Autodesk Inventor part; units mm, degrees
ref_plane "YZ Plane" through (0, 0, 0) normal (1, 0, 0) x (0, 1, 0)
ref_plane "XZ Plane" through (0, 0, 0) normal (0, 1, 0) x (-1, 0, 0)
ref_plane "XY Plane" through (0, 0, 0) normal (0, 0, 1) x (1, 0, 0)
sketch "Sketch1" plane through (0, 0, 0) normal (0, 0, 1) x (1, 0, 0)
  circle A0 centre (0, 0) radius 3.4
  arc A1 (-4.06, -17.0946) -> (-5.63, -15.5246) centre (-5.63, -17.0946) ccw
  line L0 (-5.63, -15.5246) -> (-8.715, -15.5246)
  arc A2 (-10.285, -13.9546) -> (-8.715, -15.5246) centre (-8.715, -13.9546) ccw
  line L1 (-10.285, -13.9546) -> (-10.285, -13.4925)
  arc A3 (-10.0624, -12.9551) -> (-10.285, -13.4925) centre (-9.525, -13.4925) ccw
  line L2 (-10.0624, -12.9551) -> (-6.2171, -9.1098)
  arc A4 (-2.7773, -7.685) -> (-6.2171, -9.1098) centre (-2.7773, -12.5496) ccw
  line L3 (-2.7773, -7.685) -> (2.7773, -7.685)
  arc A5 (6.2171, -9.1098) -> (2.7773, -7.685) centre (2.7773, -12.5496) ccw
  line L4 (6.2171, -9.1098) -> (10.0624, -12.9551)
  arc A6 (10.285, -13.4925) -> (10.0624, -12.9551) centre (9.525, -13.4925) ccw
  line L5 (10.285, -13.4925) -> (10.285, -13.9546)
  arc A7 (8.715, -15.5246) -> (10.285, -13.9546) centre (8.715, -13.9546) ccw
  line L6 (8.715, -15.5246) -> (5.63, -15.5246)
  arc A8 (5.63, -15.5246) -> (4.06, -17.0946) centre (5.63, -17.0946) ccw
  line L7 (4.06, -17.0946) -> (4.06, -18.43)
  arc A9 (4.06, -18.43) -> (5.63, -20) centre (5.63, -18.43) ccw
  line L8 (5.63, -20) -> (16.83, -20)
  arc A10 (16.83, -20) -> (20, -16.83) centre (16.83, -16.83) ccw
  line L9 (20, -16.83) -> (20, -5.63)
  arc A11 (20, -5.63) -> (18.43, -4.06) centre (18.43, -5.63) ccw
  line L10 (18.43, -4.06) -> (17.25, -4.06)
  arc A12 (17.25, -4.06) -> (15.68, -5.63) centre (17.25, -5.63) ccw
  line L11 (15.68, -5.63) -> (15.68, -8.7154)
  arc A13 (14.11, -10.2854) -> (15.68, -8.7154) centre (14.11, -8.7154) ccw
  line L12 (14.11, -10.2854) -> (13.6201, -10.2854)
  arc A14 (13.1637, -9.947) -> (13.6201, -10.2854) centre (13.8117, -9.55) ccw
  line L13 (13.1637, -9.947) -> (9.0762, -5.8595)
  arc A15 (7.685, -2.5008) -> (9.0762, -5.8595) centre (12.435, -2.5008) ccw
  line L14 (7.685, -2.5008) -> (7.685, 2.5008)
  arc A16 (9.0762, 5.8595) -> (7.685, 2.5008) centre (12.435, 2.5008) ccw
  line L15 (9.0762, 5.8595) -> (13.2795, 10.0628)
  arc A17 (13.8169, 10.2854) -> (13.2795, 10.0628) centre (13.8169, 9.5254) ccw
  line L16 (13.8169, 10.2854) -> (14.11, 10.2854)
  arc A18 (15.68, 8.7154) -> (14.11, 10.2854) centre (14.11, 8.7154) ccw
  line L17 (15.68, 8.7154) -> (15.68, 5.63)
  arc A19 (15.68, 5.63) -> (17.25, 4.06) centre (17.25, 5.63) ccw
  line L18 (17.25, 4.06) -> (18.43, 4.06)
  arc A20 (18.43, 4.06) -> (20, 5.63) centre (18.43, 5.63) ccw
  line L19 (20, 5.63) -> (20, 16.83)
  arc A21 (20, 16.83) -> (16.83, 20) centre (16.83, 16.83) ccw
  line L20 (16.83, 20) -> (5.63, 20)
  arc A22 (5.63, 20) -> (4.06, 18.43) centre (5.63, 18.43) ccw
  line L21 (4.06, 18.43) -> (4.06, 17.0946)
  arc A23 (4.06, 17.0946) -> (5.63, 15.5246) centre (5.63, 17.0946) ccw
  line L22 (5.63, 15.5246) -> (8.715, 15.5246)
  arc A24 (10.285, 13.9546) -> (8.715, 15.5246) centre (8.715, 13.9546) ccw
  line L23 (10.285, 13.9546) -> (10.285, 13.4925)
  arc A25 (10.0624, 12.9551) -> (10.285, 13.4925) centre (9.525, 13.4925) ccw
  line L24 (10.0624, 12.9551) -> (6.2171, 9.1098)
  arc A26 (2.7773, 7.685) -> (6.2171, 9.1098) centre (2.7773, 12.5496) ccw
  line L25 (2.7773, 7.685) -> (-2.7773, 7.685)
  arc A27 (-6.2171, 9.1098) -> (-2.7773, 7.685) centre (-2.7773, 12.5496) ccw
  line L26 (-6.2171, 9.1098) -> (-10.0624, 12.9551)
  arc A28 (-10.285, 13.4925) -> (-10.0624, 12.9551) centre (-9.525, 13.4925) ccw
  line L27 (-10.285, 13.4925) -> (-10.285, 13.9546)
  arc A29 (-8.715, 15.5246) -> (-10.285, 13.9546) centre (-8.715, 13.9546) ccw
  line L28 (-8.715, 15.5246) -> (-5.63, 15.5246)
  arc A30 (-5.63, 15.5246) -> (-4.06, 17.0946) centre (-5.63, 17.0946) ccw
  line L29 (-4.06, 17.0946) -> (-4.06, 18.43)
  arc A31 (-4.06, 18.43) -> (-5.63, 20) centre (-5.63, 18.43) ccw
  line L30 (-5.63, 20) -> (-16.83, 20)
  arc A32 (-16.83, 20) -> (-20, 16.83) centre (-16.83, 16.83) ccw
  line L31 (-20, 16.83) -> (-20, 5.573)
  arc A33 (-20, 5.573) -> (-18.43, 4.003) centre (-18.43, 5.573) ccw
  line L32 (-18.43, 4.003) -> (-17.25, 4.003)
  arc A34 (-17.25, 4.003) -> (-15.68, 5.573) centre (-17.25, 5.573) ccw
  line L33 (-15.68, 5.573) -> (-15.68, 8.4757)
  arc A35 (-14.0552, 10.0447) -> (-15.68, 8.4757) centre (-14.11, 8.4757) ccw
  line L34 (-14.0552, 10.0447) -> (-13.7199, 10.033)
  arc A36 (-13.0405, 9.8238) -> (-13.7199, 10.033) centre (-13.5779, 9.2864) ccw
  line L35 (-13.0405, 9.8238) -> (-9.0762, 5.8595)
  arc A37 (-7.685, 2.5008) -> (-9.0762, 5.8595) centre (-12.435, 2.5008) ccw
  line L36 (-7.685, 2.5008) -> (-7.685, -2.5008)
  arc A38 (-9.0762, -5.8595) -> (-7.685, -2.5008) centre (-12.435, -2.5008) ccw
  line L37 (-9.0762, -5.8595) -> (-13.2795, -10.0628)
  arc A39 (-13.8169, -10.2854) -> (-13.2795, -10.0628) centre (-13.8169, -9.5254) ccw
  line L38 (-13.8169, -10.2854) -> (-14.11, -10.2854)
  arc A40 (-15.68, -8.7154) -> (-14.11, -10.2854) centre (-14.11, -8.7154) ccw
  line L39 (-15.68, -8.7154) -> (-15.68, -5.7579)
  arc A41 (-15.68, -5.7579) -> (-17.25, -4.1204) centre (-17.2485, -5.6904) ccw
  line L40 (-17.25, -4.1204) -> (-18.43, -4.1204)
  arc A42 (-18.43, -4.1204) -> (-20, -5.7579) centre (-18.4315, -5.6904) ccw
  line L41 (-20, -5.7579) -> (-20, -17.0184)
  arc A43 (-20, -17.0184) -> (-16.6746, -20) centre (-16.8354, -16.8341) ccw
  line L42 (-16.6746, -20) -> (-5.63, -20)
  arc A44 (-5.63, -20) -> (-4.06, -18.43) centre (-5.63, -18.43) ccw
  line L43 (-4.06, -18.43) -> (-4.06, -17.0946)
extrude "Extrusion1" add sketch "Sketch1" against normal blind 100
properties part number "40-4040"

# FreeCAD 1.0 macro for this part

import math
import FreeCAD as App
import Part
import Sketcher

doc = App.newDocument("Part")
body = doc.addObject("PartDesign::Body", "Body")

# Sketch on XY plane
sketch1 = body.newObject("Sketcher::SketchObject", "Sketch")
sketch1.AttachmentSupport = (doc.getObject("XY_Plane"), [""])
sketch1.MapMode = "FlatFace"
sketch1.addGeometry(Part.LineSegment(App.Vector(-4.06, -18.43, 0), App.Vector(-4.06, -17.09, 0)), False)
sketch1.addGeometry(Part.ArcOfCircle(Part.Circle(App.Vector(-5.63, -17.09, 0), App.Vector(0, 0, 1), 1.57), math.radians(0), math.radians(90)), False)
sketch1.addGeometry(Part.LineSegment(App.Vector(-5.63, -15.52, 0), App.Vector(-8.71, -15.52, 0)), False)
sketch1.addGeometry(Part.ArcOfCircle(Part.Circle(App.Vector(-8.71, -13.95, 0), App.Vector(0, 0, 1), 1.57), math.radians(180), math.radians(270)), False)
sketch1.addGeometry(Part.LineSegment(App.Vector(-10.29, -13.95, 0), App.Vector(-10.29, -13.49, 0)), False)
sketch1.addGeometry(Part.ArcOfCircle(Part.Circle(App.Vector(-9.53, -13.49, 0), App.Vector(0, 0, 1), 0.76), math.radians(135), math.radians(180)), False)
sketch1.addGeometry(Part.LineSegment(App.Vector(-10.06, -12.96, 0), App.Vector(-6.22, -9.11, 0)), False)
sketch1.addGeometry(Part.ArcOfCircle(Part.Circle(App.Vector(-2.78, -12.55, 0), App.Vector(0, 0, 1), 4.86), math.radians(90), math.radians(135)), False)
sketch1.addGeometry(Part.LineSegment(App.Vector(-2.78, -7.68, 0), App.Vector(2.78, -7.68, 0)), False)
sketch1.addGeometry(Part.ArcOfCircle(Part.Circle(App.Vector(2.78, -12.55, 0), App.Vector(0, 0, 1), 4.86), math.radians(45), math.radians(90)), False)
sketch1.addGeometry(Part.LineSegment(App.Vector(6.22, -9.11, 0), App.Vector(10.06, -12.96, 0)), False)
sketch1.addGeometry(Part.ArcOfCircle(Part.Circle(App.Vector(9.53, -13.49, 0), App.Vector(0, 0, 1), 0.76), math.radians(0), math.radians(45)), False)
sketch1.addGeometry(Part.LineSegment(App.Vector(10.29, -13.49, 0), App.Vector(10.29, -13.95, 0)), False)
sketch1.addGeometry(Part.ArcOfCircle(Part.Circle(App.Vector(8.71, -13.95, 0), App.Vector(0, 0, 1), 1.57), math.radians(-90), math.radians(0)), False)
sketch1.addGeometry(Part.LineSegment(App.Vector(8.71, -15.52, 0), App.Vector(5.63, -15.52, 0)), False)
sketch1.addGeometry(Part.ArcOfCircle(Part.Circle(App.Vector(5.63, -17.09, 0), App.Vector(0, 0, 1), 1.57), math.radians(90), math.radians(180)), False)
sketch1.addGeometry(Part.LineSegment(App.Vector(4.06, -17.09, 0), App.Vector(4.06, -18.43, 0)), False)
sketch1.addGeometry(Part.ArcOfCircle(Part.Circle(App.Vector(5.63, -18.43, 0), App.Vector(0, 0, 1), 1.57), math.radians(180), math.radians(270)), False)
sketch1.addGeometry(Part.LineSegment(App.Vector(5.63, -20, 0), App.Vector(16.83, -20, 0)), False)
sketch1.addGeometry(Part.ArcOfCircle(Part.Circle(App.Vector(16.83, -16.83, 0), App.Vector(0, 0, 1), 3.17), math.radians(-90), math.radians(0)), False)
sketch1.addGeometry(Part.LineSegment(App.Vector(20, -16.83, 0), App.Vector(20, -5.63, 0)), False)
sketch1.addGeometry(Part.ArcOfCircle(Part.Circle(App.Vector(18.43, -5.63, 0), App.Vector(0, 0, 1), 1.57), math.radians(0), math.radians(90)), False)
sketch1.addGeometry(Part.LineSegment(App.Vector(18.43, -4.06, 0), App.Vector(17.25, -4.06, 0)), False)
sketch1.addGeometry(Part.ArcOfCircle(Part.Circle(App.Vector(17.25, -5.63, 0), App.Vector(0, 0, 1), 1.57), math.radians(90), math.radians(180)), False)
sketch1.addGeometry(Part.LineSegment(App.Vector(15.68, -5.63, 0), App.Vector(15.68, -8.72, 0)), False)
sketch1.addGeometry(Part.ArcOfCircle(Part.Circle(App.Vector(14.11, -8.72, 0), App.Vector(0, 0, 1), 1.57), math.radians(-90), math.radians(0)), False)
sketch1.addGeometry(Part.LineSegment(App.Vector(14.11, -10.29, 0), App.Vector(13.62, -10.29, 0)), False)
sketch1.addGeometry(Part.ArcOfCircle(Part.Circle(App.Vector(13.81, -9.55, 0), App.Vector(0, 0, 1), 0.76), math.radians(-149), math.radians(-105)), False)
sketch1.addGeometry(Part.LineSegment(App.Vector(13.16, -9.95, 0), App.Vector(9.08, -5.86, 0)), False)
sketch1.addGeometry(Part.ArcOfCircle(Part.Circle(App.Vector(12.44, -2.5, 0), App.Vector(0, 0, 1), 4.75), math.radians(180), math.radians(225)), False)
sketch1.addGeometry(Part.LineSegment(App.Vector(7.68, -2.5, 0), App.Vector(7.68, 2.5, 0)), False)
sketch1.addGeometry(Part.ArcOfCircle(Part.Circle(App.Vector(12.44, 2.5, 0), App.Vector(0, 0, 1), 4.75), math.radians(135), math.radians(180)), False)
sketch1.addGeometry(Part.LineSegment(App.Vector(9.08, 5.86, 0), App.Vector(13.28, 10.06, 0)), False)
sketch1.addGeometry(Part.ArcOfCircle(Part.Circle(App.Vector(13.82, 9.53, 0), App.Vector(0, 0, 1), 0.76), math.radians(90), math.radians(135)), False)
sketch1.addGeometry(Part.LineSegment(App.Vector(13.82, 10.29, 0), App.Vector(14.11, 10.29, 0)), False)
sketch1.addGeometry(Part.ArcOfCircle(Part.Circle(App.Vector(14.11, 8.72, 0), App.Vector(0, 0, 1), 1.57), math.radians(0), math.radians(90)), False)
sketch1.addGeometry(Part.LineSegment(App.Vector(15.68, 8.72, 0), App.Vector(15.68, 5.63, 0)), False)
sketch1.addGeometry(Part.ArcOfCircle(Part.Circle(App.Vector(17.25, 5.63, 0), App.Vector(0, 0, 1), 1.57), math.radians(180), math.radians(270)), False)
sketch1.addGeometry(Part.LineSegment(App.Vector(17.25, 4.06, 0), App.Vector(18.43, 4.06, 0)), False)
sketch1.addGeometry(Part.ArcOfCircle(Part.Circle(App.Vector(18.43, 5.63, 0), App.Vector(0, 0, 1), 1.57), math.radians(-90), math.radians(0)), False)
sketch1.addGeometry(Part.LineSegment(App.Vector(20, 5.63, 0), App.Vector(20, 16.83, 0)), False)
sketch1.addGeometry(Part.ArcOfCircle(Part.Circle(App.Vector(16.83, 16.83, 0), App.Vector(0, 0, 1), 3.17), math.radians(0), math.radians(90)), False)
sketch1.addGeometry(Part.LineSegment(App.Vector(16.83, 20, 0), App.Vector(5.63, 20, 0)), False)
sketch1.addGeometry(Part.ArcOfCircle(Part.Circle(App.Vector(5.63, 18.43, 0), App.Vector(0, 0, 1), 1.57), math.radians(90), math.radians(180)), False)
sketch1.addGeometry(Part.LineSegment(App.Vector(4.06, 18.43, 0), App.Vector(4.06, 17.09, 0)), False)
sketch1.addGeometry(Part.ArcOfCircle(Part.Circle(App.Vector(5.63, 17.09, 0), App.Vector(0, 0, 1), 1.57), math.radians(180), math.radians(270)), False)
sketch1.addGeometry(Part.LineSegment(App.Vector(5.63, 15.52, 0), App.Vector(8.71, 15.52, 0)), False)
sketch1.addGeometry(Part.ArcOfCircle(Part.Circle(App.Vector(8.71, 13.95, 0), App.Vector(0, 0, 1), 1.57), math.radians(0), math.radians(90)), False)
sketch1.addGeometry(Part.LineSegment(App.Vector(10.29, 13.95, 0), App.Vector(10.29, 13.49, 0)), False)
sketch1.addGeometry(Part.ArcOfCircle(Part.Circle(App.Vector(9.53, 13.49, 0), App.Vector(0, 0, 1), 0.76), math.radians(-45), math.radians(0)), False)
sketch1.addGeometry(Part.LineSegment(App.Vector(10.06, 12.96, 0), App.Vector(6.22, 9.11, 0)), False)
sketch1.addGeometry(Part.ArcOfCircle(Part.Circle(App.Vector(2.78, 12.55, 0), App.Vector(0, 0, 1), 4.86), math.radians(-90), math.radians(-45)), False)
sketch1.addGeometry(Part.LineSegment(App.Vector(2.78, 7.68, 0), App.Vector(-2.78, 7.68, 0)), False)
sketch1.addGeometry(Part.ArcOfCircle(Part.Circle(App.Vector(-2.78, 12.55, 0), App.Vector(0, 0, 1), 4.86), math.radians(-135), math.radians(-90)), False)
sketch1.addGeometry(Part.LineSegment(App.Vector(-6.22, 9.11, 0), App.Vector(-10.06, 12.96, 0)), False)
sketch1.addGeometry(Part.ArcOfCircle(Part.Circle(App.Vector(-9.53, 13.49, 0), App.Vector(0, 0, 1), 0.76), math.radians(180), math.radians(225)), False)
sketch1.addGeometry(Part.LineSegment(App.Vector(-10.29, 13.49, 0), App.Vector(-10.29, 13.95, 0)), False)
sketch1.addGeometry(Part.ArcOfCircle(Part.Circle(App.Vector(-8.71, 13.95, 0), App.Vector(0, 0, 1), 1.57), math.radians(90), math.radians(180)), False)
sketch1.addGeometry(Part.LineSegment(App.Vector(-8.71, 15.52, 0), App.Vector(-5.63, 15.52, 0)), False)
sketch1.addGeometry(Part.ArcOfCircle(Part.Circle(App.Vector(-5.63, 17.09, 0), App.Vector(0, 0, 1), 1.57), math.radians(-90), math.radians(0)), False)
sketch1.addGeometry(Part.LineSegment(App.Vector(-4.06, 17.09, 0), App.Vector(-4.06, 18.43, 0)), False)
sketch1.addGeometry(Part.ArcOfCircle(Part.Circle(App.Vector(-5.63, 18.43, 0), App.Vector(0, 0, 1), 1.57), math.radians(0), math.radians(90)), False)
sketch1.addGeometry(Part.LineSegment(App.Vector(-5.63, 20, 0), App.Vector(-16.83, 20, 0)), False)
sketch1.addGeometry(Part.ArcOfCircle(Part.Circle(App.Vector(-16.83, 16.83, 0), App.Vector(0, 0, 1), 3.17), math.radians(90), math.radians(180)), False)
sketch1.addGeometry(Part.LineSegment(App.Vector(-20, 16.83, 0), App.Vector(-20, 5.57, 0)), False)
sketch1.addGeometry(Part.ArcOfCircle(Part.Circle(App.Vector(-18.43, 5.57, 0), App.Vector(0, 0, 1), 1.57), math.radians(180), math.radians(270)), False)
sketch1.addGeometry(Part.LineSegment(App.Vector(-18.43, 4, 0), App.Vector(-17.25, 4, 0)), False)
sketch1.addGeometry(Part.ArcOfCircle(Part.Circle(App.Vector(-17.25, 5.57, 0), App.Vector(0, 0, 1), 1.57), math.radians(-90), math.radians(0)), False)
sketch1.addGeometry(Part.LineSegment(App.Vector(-15.68, 5.57, 0), App.Vector(-15.68, 8.48, 0)), False)
sketch1.addGeometry(Part.ArcOfCircle(Part.Circle(App.Vector(-14.11, 8.48, 0), App.Vector(0, 0, 1), 1.57), math.radians(88), math.radians(180)), False)
sketch1.addGeometry(Part.LineSegment(App.Vector(-14.06, 10.04, 0), App.Vector(-13.72, 10.03, 0)), False)
sketch1.addGeometry(Part.ArcOfCircle(Part.Circle(App.Vector(-13.58, 9.29, 0), App.Vector(0, 0, 1), 0.76), math.radians(45), math.radians(101)), False)
sketch1.addGeometry(Part.LineSegment(App.Vector(-13.04, 9.82, 0), App.Vector(-9.08, 5.86, 0)), False)
sketch1.addGeometry(Part.ArcOfCircle(Part.Circle(App.Vector(-12.44, 2.5, 0), App.Vector(0, 0, 1), 4.75), math.radians(0), math.radians(45)), False)
sketch1.addGeometry(Part.LineSegment(App.Vector(-7.68, 2.5, 0), App.Vector(-7.68, -2.5, 0)), False)
sketch1.addGeometry(Part.ArcOfCircle(Part.Circle(App.Vector(-12.44, -2.5, 0), App.Vector(0, 0, 1), 4.75), math.radians(-45), math.radians(0)), False)
sketch1.addGeometry(Part.LineSegment(App.Vector(-9.08, -5.86, 0), App.Vector(-13.28, -10.06, 0)), False)
sketch1.addGeometry(Part.ArcOfCircle(Part.Circle(App.Vector(-13.82, -9.53, 0), App.Vector(0, 0, 1), 0.76), math.radians(-90), math.radians(-45)), False)
sketch1.addGeometry(Part.LineSegment(App.Vector(-13.82, -10.29, 0), App.Vector(-14.11, -10.29, 0)), False)
sketch1.addGeometry(Part.ArcOfCircle(Part.Circle(App.Vector(-14.11, -8.72, 0), App.Vector(0, 0, 1), 1.57), math.radians(180), math.radians(270)), False)
sketch1.addGeometry(Part.LineSegment(App.Vector(-15.68, -8.72, 0), App.Vector(-15.68, -5.76, 0)), False)
sketch1.addGeometry(Part.ArcOfCircle(Part.Circle(App.Vector(-17.25, -5.69, 0), App.Vector(0, 0, 1), 1.57), math.radians(-2), math.radians(90)), False)
sketch1.addGeometry(Part.LineSegment(App.Vector(-17.25, -4.12, 0), App.Vector(-18.43, -4.12, 0)), False)
sketch1.addGeometry(Part.ArcOfCircle(Part.Circle(App.Vector(-18.43, -5.69, 0), App.Vector(0, 0, 1), 1.57), math.radians(90), math.radians(182)), False)
sketch1.addGeometry(Part.LineSegment(App.Vector(-20, -5.76, 0), App.Vector(-20, -17.02, 0)), False)
sketch1.addGeometry(Part.ArcOfCircle(Part.Circle(App.Vector(-16.84, -16.83, 0), App.Vector(0, 0, 1), 3.17), math.radians(-177), math.radians(-87)), False)
sketch1.addGeometry(Part.LineSegment(App.Vector(-16.67, -20, 0), App.Vector(-5.63, -20, 0)), False)
sketch1.addGeometry(Part.ArcOfCircle(Part.Circle(App.Vector(-5.63, -18.43, 0), App.Vector(0, 0, 1), 1.57), math.radians(-90), math.radians(0)), False)
sketch1.addGeometry(Part.Circle(App.Vector(0, 0, 0), App.Vector(0, 0, 1), 3.4), False)
sketch1.addConstraint(Sketcher.Constraint("Tangent", 0, 2, 1, 1))
sketch1.addConstraint(Sketcher.Constraint("Tangent", 1, 2, 2, 1))
sketch1.addConstraint(Sketcher.Constraint("Tangent", 2, 2, 3, 2))
sketch1.addConstraint(Sketcher.Constraint("Tangent", 3, 1, 4, 1))
sketch1.addConstraint(Sketcher.Constraint("Tangent", 4, 2, 5, 2))
sketch1.addConstraint(Sketcher.Constraint("Tangent", 5, 1, 6, 1))
sketch1.addConstraint(Sketcher.Constraint("Tangent", 6, 2, 7, 2))
sketch1.addConstraint(Sketcher.Constraint("Tangent", 7, 1, 8, 1))
sketch1.addConstraint(Sketcher.Constraint("Tangent", 8, 2, 9, 2))
sketch1.addConstraint(Sketcher.Constraint("Tangent", 9, 1, 10, 1))
sketch1.addConstraint(Sketcher.Constraint("Tangent", 10, 2, 11, 2))
sketch1.addConstraint(Sketcher.Constraint("Tangent", 11, 1, 12, 1))
sketch1.addConstraint(Sketcher.Constraint("Tangent", 12, 2, 13, 2))
sketch1.addConstraint(Sketcher.Constraint("Tangent", 13, 1, 14, 1))
sketch1.addConstraint(Sketcher.Constraint("Tangent", 14, 2, 15, 1))
sketch1.addConstraint(Sketcher.Constraint("Tangent", 15, 2, 16, 1))
sketch1.addConstraint(Sketcher.Constraint("Tangent", 16, 2, 17, 1))
sketch1.addConstraint(Sketcher.Constraint("Tangent", 17, 2, 18, 1))
sketch1.addConstraint(Sketcher.Constraint("Tangent", 18, 2, 19, 1))
sketch1.addConstraint(Sketcher.Constraint("Tangent", 19, 2, 20, 1))
sketch1.addConstraint(Sketcher.Constraint("Tangent", 20, 2, 21, 1))
sketch1.addConstraint(Sketcher.Constraint("Tangent", 21, 2, 22, 1))
sketch1.addConstraint(Sketcher.Constraint("Tangent", 22, 2, 23, 1))
sketch1.addConstraint(Sketcher.Constraint("Tangent", 23, 2, 24, 1))
sketch1.addConstraint(Sketcher.Constraint("Tangent", 24, 2, 25, 2))
sketch1.addConstraint(Sketcher.Constraint("Tangent", 25, 1, 26, 1))
sketch1.addConstraint(Sketcher.Constraint("Coincident", 26, 2, 27, 2))
sketch1.addConstraint(Sketcher.Constraint("Coincident", 27, 1, 28, 1))
sketch1.addConstraint(Sketcher.Constraint("Tangent", 28, 2, 29, 2))
sketch1.addConstraint(Sketcher.Constraint("Tangent", 29, 1, 30, 1))
sketch1.addConstraint(Sketcher.Constraint("Tangent", 30, 2, 31, 2))
sketch1.addConstraint(Sketcher.Constraint("Tangent", 31, 1, 32, 1))
sketch1.addConstraint(Sketcher.Constraint("Tangent", 32, 2, 33, 2))
sketch1.addConstraint(Sketcher.Constraint("Tangent", 33, 1, 34, 1))
sketch1.addConstraint(Sketcher.Constraint("Tangent", 34, 2, 35, 2))
sketch1.addConstraint(Sketcher.Constraint("Tangent", 35, 1, 36, 1))
sketch1.addConstraint(Sketcher.Constraint("Tangent", 36, 2, 37, 1))
sketch1.addConstraint(Sketcher.Constraint("Tangent", 37, 2, 38, 1))
sketch1.addConstraint(Sketcher.Constraint("Tangent", 38, 2, 39, 1))
sketch1.addConstraint(Sketcher.Constraint("Tangent", 39, 2, 40, 1))
sketch1.addConstraint(Sketcher.Constraint("Tangent", 40, 2, 41, 1))
sketch1.addConstraint(Sketcher.Constraint("Tangent", 41, 2, 42, 1))
sketch1.addConstraint(Sketcher.Constraint("Tangent", 42, 2, 43, 1))
sketch1.addConstraint(Sketcher.Constraint("Tangent", 43, 2, 44, 1))
sketch1.addConstraint(Sketcher.Constraint("Tangent", 44, 2, 45, 1))
sketch1.addConstraint(Sketcher.Constraint("Tangent", 45, 2, 46, 1))
sketch1.addConstraint(Sketcher.Constraint("Tangent", 46, 2, 47, 2))
sketch1.addConstraint(Sketcher.Constraint("Tangent", 47, 1, 48, 1))
sketch1.addConstraint(Sketcher.Constraint("Tangent", 48, 2, 49, 2))
sketch1.addConstraint(Sketcher.Constraint("Tangent", 49, 1, 50, 1))
sketch1.addConstraint(Sketcher.Constraint("Tangent", 50, 2, 51, 2))
sketch1.addConstraint(Sketcher.Constraint("Tangent", 51, 1, 52, 1))
sketch1.addConstraint(Sketcher.Constraint("Tangent", 52, 2, 53, 2))
sketch1.addConstraint(Sketcher.Constraint("Tangent", 53, 1, 54, 1))
sketch1.addConstraint(Sketcher.Constraint("Tangent", 54, 2, 55, 2))
sketch1.addConstraint(Sketcher.Constraint("Tangent", 55, 1, 56, 1))
sketch1.addConstraint(Sketcher.Constraint("Tangent", 56, 2, 57, 2))
sketch1.addConstraint(Sketcher.Constraint("Tangent", 57, 1, 58, 1))
sketch1.addConstraint(Sketcher.Constraint("Tangent", 58, 2, 59, 1))
sketch1.addConstraint(Sketcher.Constraint("Tangent", 59, 2, 60, 1))
sketch1.addConstraint(Sketcher.Constraint("Tangent", 60, 2, 61, 1))
sketch1.addConstraint(Sketcher.Constraint("Tangent", 61, 2, 62, 1))
sketch1.addConstraint(Sketcher.Constraint("Tangent", 62, 2, 63, 1))
sketch1.addConstraint(Sketcher.Constraint("Tangent", 63, 2, 64, 1))
sketch1.addConstraint(Sketcher.Constraint("Tangent", 64, 2, 65, 1))
sketch1.addConstraint(Sketcher.Constraint("Tangent", 65, 2, 66, 1))
sketch1.addConstraint(Sketcher.Constraint("Tangent", 66, 2, 67, 1))
sketch1.addConstraint(Sketcher.Constraint("Tangent", 67, 2, 68, 1))
sketch1.addConstraint(Sketcher.Constraint("Tangent", 68, 2, 69, 2))
sketch1.addConstraint(Sketcher.Constraint("Tangent", 69, 1, 70, 1))
sketch1.addConstraint(Sketcher.Constraint("Coincident", 70, 2, 71, 2))
sketch1.addConstraint(Sketcher.Constraint("Tangent", 71, 1, 72, 1))
sketch1.addConstraint(Sketcher.Constraint("Tangent", 72, 2, 73, 2))
sketch1.addConstraint(Sketcher.Constraint("Tangent", 73, 1, 74, 1))
sketch1.addConstraint(Sketcher.Constraint("Tangent", 74, 2, 75, 2))
sketch1.addConstraint(Sketcher.Constraint("Tangent", 75, 1, 76, 1))
sketch1.addConstraint(Sketcher.Constraint("Tangent", 76, 2, 77, 2))
sketch1.addConstraint(Sketcher.Constraint("Tangent", 77, 1, 78, 1))
sketch1.addConstraint(Sketcher.Constraint("Tangent", 78, 2, 79, 2))
sketch1.addConstraint(Sketcher.Constraint("Tangent", 79, 1, 80, 1))
sketch1.addConstraint(Sketcher.Constraint("Coincident", 80, 2, 81, 1))
sketch1.addConstraint(Sketcher.Constraint("Coincident", 81, 2, 82, 1))
sketch1.addConstraint(Sketcher.Constraint("Coincident", 82, 2, 83, 1))
sketch1.addConstraint(Sketcher.Constraint("Coincident", 83, 2, 84, 1))
sketch1.addConstraint(Sketcher.Constraint("Coincident", 84, 2, 85, 1))
sketch1.addConstraint(Sketcher.Constraint("Coincident", 85, 2, 86, 1))
sketch1.addConstraint(Sketcher.Constraint("Tangent", 86, 2, 87, 1))
sketch1.addConstraint(Sketcher.Constraint("Tangent", 87, 2, 0, 1))
sketch1.addConstraint(Sketcher.Constraint("Vertical", 0))
sketch1.addConstraint(Sketcher.Constraint("Horizontal", 2))
sketch1.addConstraint(Sketcher.Constraint("Vertical", 4))
sketch1.addConstraint(Sketcher.Constraint("Horizontal", 8))
sketch1.addConstraint(Sketcher.Constraint("Vertical", 12))
sketch1.addConstraint(Sketcher.Constraint("Horizontal", 14))
sketch1.addConstraint(Sketcher.Constraint("Vertical", 16))
sketch1.addConstraint(Sketcher.Constraint("Horizontal", 18))
sketch1.addConstraint(Sketcher.Constraint("Vertical", 20))
sketch1.addConstraint(Sketcher.Constraint("Horizontal", 22))
sketch1.addConstraint(Sketcher.Constraint("Vertical", 24))
sketch1.addConstraint(Sketcher.Constraint("Horizontal", 26))
sketch1.addConstraint(Sketcher.Constraint("Vertical", 30))
sketch1.addConstraint(Sketcher.Constraint("Horizontal", 34))
sketch1.addConstraint(Sketcher.Constraint("Vertical", 36))
sketch1.addConstraint(Sketcher.Constraint("Horizontal", 38))
sketch1.addConstraint(Sketcher.Constraint("Vertical", 40))
sketch1.addConstraint(Sketcher.Constraint("Horizontal", 42))
sketch1.addConstraint(Sketcher.Constraint("Vertical", 44))
sketch1.addConstraint(Sketcher.Constraint("Horizontal", 46))
sketch1.addConstraint(Sketcher.Constraint("Vertical", 48))
sketch1.addConstraint(Sketcher.Constraint("Horizontal", 52))
sketch1.addConstraint(Sketcher.Constraint("Vertical", 56))
sketch1.addConstraint(Sketcher.Constraint("Horizontal", 58))
sketch1.addConstraint(Sketcher.Constraint("Vertical", 60))
sketch1.addConstraint(Sketcher.Constraint("Horizontal", 62))
sketch1.addConstraint(Sketcher.Constraint("Vertical", 64))
sketch1.addConstraint(Sketcher.Constraint("Horizontal", 66))
sketch1.addConstraint(Sketcher.Constraint("Vertical", 68))
sketch1.addConstraint(Sketcher.Constraint("Vertical", 74))
sketch1.addConstraint(Sketcher.Constraint("Horizontal", 78))
sketch1.addConstraint(Sketcher.Constraint("Vertical", 80))
sketch1.addConstraint(Sketcher.Constraint("Horizontal", 82))
sketch1.addConstraint(Sketcher.Constraint("Vertical", 84))
sketch1.addConstraint(Sketcher.Constraint("Horizontal", 86))
sketch1.addConstraint(Sketcher.Constraint("Coincident", 88, 3, -1, 1))
sketch1.addConstraint(Sketcher.Constraint("Equal", 1, 3))
sketch1.addConstraint(Sketcher.Constraint("Equal", 7, 9))
sketch1.addConstraint(Sketcher.Constraint("Equal", 5, 11))
sketch1.addConstraint(Sketcher.Constraint("Equal", 3, 13))
sketch1.addConstraint(Sketcher.Constraint("Equal", 13, 15))
sketch1.addConstraint(Sketcher.Constraint("Equal", 15, 17))
sketch1.addConstraint(Sketcher.Constraint("Equal", 17, 21))
sketch1.addConstraint(Sketcher.Constraint("Equal", 21, 23))
sketch1.addConstraint(Sketcher.Constraint("Equal", 23, 25))
sketch1.addConstraint(Sketcher.Constraint("Equal", 11, 27))
sketch1.addConstraint(Sketcher.Constraint("Equal", 29, 31))
sketch1.addConstraint(Sketcher.Constraint("Equal", 27, 33))
sketch1.addConstraint(Sketcher.Constraint("Equal", 25, 35))
sketch1.addConstraint(Sketcher.Constraint("Equal", 35, 37))
sketch1.addConstraint(Sketcher.Constraint("Equal", 37, 39))
sketch1.addConstraint(Sketcher.Constraint("Equal", 19, 41))
sketch1.addConstraint(Sketcher.Constraint("Equal", 39, 43))
sketch1.addConstraint(Sketcher.Constraint("Equal", 43, 45))
sketch1.addConstraint(Sketcher.Constraint("Equal", 45, 47))
sketch1.addConstraint(Sketcher.Constraint("Equal", 33, 49))
sketch1.addConstraint(Sketcher.Constraint("Equal", 9, 51))
sketch1.addConstraint(Sketcher.Constraint("Equal", 51, 53))
sketch1.addConstraint(Sketcher.Constraint("Equal", 49, 55))
sketch1.addConstraint(Sketcher.Constraint("Equal", 47, 57))
sketch1.addConstraint(Sketcher.Constraint("Equal", 57, 59))
sketch1.addConstraint(Sketcher.Constraint("Equal", 59, 61))
sketch1.addConstraint(Sketcher.Constraint("Equal", 41, 63))
sketch1.addConstraint(Sketcher.Constraint("Equal", 61, 65))
sketch1.addConstraint(Sketcher.Constraint("Equal", 65, 67))
sketch1.addConstraint(Sketcher.Constraint("Equal", 67, 69))
sketch1.addConstraint(Sketcher.Constraint("Equal", 55, 71))
sketch1.addConstraint(Sketcher.Constraint("Equal", 31, 73))
sketch1.addConstraint(Sketcher.Constraint("Equal", 73, 75))
sketch1.addConstraint(Sketcher.Constraint("Equal", 71, 77))
sketch1.addConstraint(Sketcher.Constraint("Equal", 69, 79))
sketch1.addConstraint(Sketcher.Constraint("Equal", 79, 81))
sketch1.addConstraint(Sketcher.Constraint("Equal", 81, 83))
sketch1.addConstraint(Sketcher.Constraint("Equal", 63, 85))
sketch1.addConstraint(Sketcher.Constraint("Equal", 83, 87))
sketch1.addConstraint(Sketcher.Constraint("Symmetric", 1, 3, 45, 3, -1, 1))
sketch1.addConstraint(Sketcher.Constraint("Symmetric", 5, 3, 49, 3, -1, 1))
sketch1.addConstraint(Sketcher.Constraint("Symmetric", 7, 3, 51, 3, -1, 1))
sketch1.addConstraint(Sketcher.Constraint("Symmetric", 11, 3, 55, 3, -1, 1))
sketch1.addConstraint(Sketcher.Constraint("Symmetric", 15, 3, 59, 3, -1, 1))
sketch1.addConstraint(Sketcher.Constraint("Symmetric", 19, 3, 63, 3, -1, 1))
sketch1.addConstraint(Sketcher.Constraint("Symmetric", 29, 3, 73, 3, -1, 1))
sketch1.addConstraint(Sketcher.Constraint("Symmetric", 33, 3, 77, 3, -1, 1))
sketch1.addConstraint(Sketcher.Constraint("Symmetric", 5, 3, 11, 3, -2))
sketch1.addConstraint(Sketcher.Constraint("Symmetric", 1, 3, 15, 3, -2))
sketch1.addConstraint(Sketcher.Constraint("Symmetric", 41, 3, 63, 3, -2))
sketch1.addConstraint(Sketcher.Constraint("Symmetric", 25, 3, 79, 3, -2))
sketch1.addConstraint(Sketcher.Constraint("Symmetric", 31, 1, 72, 2, -2))
sketch1.addConstraint(Sketcher.Constraint("Symmetric", 28, 2, 75, 1, -2))
sketch1.addConstraint(Sketcher.Constraint("Symmetric", 23, 3, 37, 3, -1))
sketch1.addConstraint(Sketcher.Constraint("Perpendicular", 6, 10))
sketch1.addConstraint(Sketcher.Constraint("Parallel", 10, 28))
sketch1.addConstraint(Sketcher.Constraint("Perpendicular", 28, 32))
sketch1.addConstraint(Sketcher.Constraint("Perpendicular", 50, 54))
sketch1.addConstraint(Sketcher.Constraint("Horizontal", 17, 3, 87, 3))
sketch1.addConstraint(Sketcher.Constraint("Horizontal", 80, 2, 83, 2))
sketch1.addConstraint(Sketcher.Constraint("Vertical", 69, 3, 79, 3))
sketch1.addConstraint(Sketcher.Constraint("Vertical", 66, 2, 81, 2))
sketch1.addConstraint(Sketcher.Constraint("Vertical", 65, 2, 82, 2))
sketch1.addConstraint(Sketcher.Constraint("Vertical", 64, 2, 83, 2))
sketch1.addConstraint(Sketcher.Constraint("Equal", 62, 20))
sketch1.addConstraint(Sketcher.Constraint("Diameter", 88, 6.8))
sketch1.addConstraint(Sketcher.Constraint("Radius", 1, 1.57))
sketch1.addConstraint(Sketcher.Constraint("Radius", 5, 0.76))
sketch1.addConstraint(Sketcher.Constraint("Radius", 19, 3.17))
sketch1.addConstraint(Sketcher.Constraint("Radius", 29, 4.75))
sketch1.addConstraint(Sketcher.Constraint("DistanceX", 18, 1, 18, 2, 11.2))
sketch1.addConstraint(Sketcher.Constraint("DistanceY", 17, 2, -1, 1, 20.0))
sketch1.addConstraint(Sketcher.Constraint("DistanceX", -1, 1, 19, 2, 20.0))
sketch1.addConstraint(Sketcher.Constraint("DistanceX", 22, 2, 22, 1, 1.18))
sketch1.addConstraint(Sketcher.Constraint("DistanceX", 26, 2, 26, 1, 0.49))
sketch1.addConstraint(Sketcher.Constraint("Radius", 7, 4.8646))
sketch1.addConstraint(Sketcher.Constraint("DistanceX", 2, 2, 2, 1, 3.085))
sketch1.addConstraint(Sketcher.Constraint("DistanceX", 34, 1, 34, 2, 0.293))
sketch1.addConstraint(Sketcher.Constraint("DistanceY", 4, 1, 4, 2, 0.462))
sketch1.addConstraint(Sketcher.Constraint("DistanceY", 64, 2, 64, 1, 11.257))
sketch1.addConstraint(Sketcher.Constraint("DistanceY", 27, 3, -1, 1, 9.55))
sketch1.addConstraint(Sketcher.Constraint("DistanceX", 70, 2, -1, 1, 13.72))
sketch1.addConstraint(Sketcher.Constraint("Distance", 6, 5.438))
sketch1.addConstraint(Sketcher.Constraint("DistanceX", 86, 1, 86, 2, 11.0446))
sketch1.addConstraint(Sketcher.Constraint("DistanceY", 0, 1, 0, 2, 1.3354))
sketch1.addConstraint(Sketcher.Constraint("DistanceY", 24, 2, 24, 1, 3.0854))
sketch1.addConstraint(Sketcher.Constraint("DistanceY", 30, 1, 30, 2, 5.0016))
sketch1.addConstraint(Sketcher.Constraint("DistanceY", 68, 1, 68, 2, 2.9027))
sketch1.addConstraint(Sketcher.Constraint("DistanceY", 80, 1, 80, 2, 2.9575))
sketch1.addConstraint(Sketcher.Constraint("DistanceY", 84, 2, 84, 1, 11.2605))
sketch1.addConstraint(Sketcher.Constraint("DistanceX", 71, 3, -1, 1, 13.578))
sketch1.addConstraint(Sketcher.Constraint("DistanceX", 81, 3, -1, 1, 17.2485))
pad1 = body.newObject("PartDesign::Pad", "Pad")
pad1.Profile = sketch1
pad1.Length = 100
pad1.Reversed = True

doc.recompute()
